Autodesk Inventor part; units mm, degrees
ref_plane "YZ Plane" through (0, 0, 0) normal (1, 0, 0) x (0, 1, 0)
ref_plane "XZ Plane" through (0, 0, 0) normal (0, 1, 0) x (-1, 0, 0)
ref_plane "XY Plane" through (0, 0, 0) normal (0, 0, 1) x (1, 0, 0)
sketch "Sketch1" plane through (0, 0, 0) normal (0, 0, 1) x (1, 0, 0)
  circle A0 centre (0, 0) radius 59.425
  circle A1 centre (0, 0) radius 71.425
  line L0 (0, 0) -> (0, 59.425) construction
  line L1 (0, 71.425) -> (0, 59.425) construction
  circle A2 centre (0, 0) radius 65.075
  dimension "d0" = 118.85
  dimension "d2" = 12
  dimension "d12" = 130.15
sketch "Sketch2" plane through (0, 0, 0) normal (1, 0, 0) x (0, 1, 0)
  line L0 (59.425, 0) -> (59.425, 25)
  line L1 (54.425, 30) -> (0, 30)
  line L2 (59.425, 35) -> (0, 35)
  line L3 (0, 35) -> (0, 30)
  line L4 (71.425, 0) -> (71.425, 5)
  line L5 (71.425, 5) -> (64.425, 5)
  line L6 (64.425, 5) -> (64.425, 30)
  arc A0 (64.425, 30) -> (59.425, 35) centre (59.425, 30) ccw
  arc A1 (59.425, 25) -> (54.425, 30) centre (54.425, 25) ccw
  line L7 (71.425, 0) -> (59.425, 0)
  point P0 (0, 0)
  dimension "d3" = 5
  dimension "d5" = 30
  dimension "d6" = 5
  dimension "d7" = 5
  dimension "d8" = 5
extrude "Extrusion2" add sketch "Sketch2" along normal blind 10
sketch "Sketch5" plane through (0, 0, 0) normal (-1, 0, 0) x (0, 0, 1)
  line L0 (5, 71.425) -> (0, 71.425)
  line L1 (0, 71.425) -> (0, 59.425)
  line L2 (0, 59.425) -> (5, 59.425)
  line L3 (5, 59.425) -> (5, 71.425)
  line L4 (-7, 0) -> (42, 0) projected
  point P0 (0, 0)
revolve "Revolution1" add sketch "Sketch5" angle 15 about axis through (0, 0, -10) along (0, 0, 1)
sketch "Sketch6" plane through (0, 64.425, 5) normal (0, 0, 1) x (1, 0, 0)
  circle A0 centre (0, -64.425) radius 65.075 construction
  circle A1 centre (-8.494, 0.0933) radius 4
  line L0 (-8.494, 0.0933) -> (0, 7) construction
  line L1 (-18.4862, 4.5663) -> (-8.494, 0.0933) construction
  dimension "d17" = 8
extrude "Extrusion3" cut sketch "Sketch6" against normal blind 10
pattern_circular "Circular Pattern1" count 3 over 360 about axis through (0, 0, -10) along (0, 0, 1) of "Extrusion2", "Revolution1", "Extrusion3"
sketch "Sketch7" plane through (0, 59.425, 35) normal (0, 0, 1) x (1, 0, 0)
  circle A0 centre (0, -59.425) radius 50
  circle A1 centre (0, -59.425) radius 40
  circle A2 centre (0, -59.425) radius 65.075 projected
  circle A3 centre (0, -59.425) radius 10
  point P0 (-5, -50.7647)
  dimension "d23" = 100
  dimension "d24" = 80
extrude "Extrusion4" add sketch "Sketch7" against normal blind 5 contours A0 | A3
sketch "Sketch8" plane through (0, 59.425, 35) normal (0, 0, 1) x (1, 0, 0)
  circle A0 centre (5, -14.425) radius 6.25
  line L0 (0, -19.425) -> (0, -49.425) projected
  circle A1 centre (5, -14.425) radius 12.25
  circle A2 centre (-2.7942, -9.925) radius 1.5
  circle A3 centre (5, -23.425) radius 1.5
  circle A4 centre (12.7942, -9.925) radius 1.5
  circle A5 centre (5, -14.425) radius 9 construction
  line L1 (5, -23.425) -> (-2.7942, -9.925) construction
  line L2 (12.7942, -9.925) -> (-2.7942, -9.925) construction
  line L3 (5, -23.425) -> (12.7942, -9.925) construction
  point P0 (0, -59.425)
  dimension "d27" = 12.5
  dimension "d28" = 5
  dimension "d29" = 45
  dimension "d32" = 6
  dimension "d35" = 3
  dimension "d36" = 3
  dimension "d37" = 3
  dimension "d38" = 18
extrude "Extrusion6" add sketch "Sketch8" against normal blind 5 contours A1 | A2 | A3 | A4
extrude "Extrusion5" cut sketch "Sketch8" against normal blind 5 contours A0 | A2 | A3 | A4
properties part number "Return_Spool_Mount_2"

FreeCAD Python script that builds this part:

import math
import FreeCAD as App
import Part
import Sketcher
Q = App.Units.Quantity

doc = App.newDocument("Part")
body = doc.addObject("PartDesign::Body", "Body")
body.AllowCompound = True

# Sketch on YZ plane
sketch1 = doc.addObject("Sketcher::SketchObject", "Sketch")
body.addObject(sketch1)
sketch1.AttachmentSupport = (doc.YZ_Plane, [""])
sketch1.MapMode = "FlatFace"
sketch1.addGeometry(Part.LineSegment(App.Vector(59.425, 25, 0), App.Vector(59.425, 0, 0)), False)
sketch1.addGeometry(Part.LineSegment(App.Vector(59.425, 0, 0), App.Vector(71.425, 0, 0)), False)
sketch1.addGeometry(Part.LineSegment(App.Vector(71.425, 0, 0), App.Vector(71.425, 5, 0)), False)
sketch1.addGeometry(Part.LineSegment(App.Vector(71.425, 5, 0), App.Vector(64.425, 5, 0)), False)
sketch1.addGeometry(Part.LineSegment(App.Vector(64.425, 5, 0), App.Vector(64.425, 30, 0)), False)
sketch1.addGeometry(Part.ArcOfCircle(Part.Circle(App.Vector(59.425, 30, 0), App.Vector(0, 0, 1), 5), math.radians(0), math.radians(90)), False)
sketch1.addGeometry(Part.LineSegment(App.Vector(59.425, 35, 0), App.Vector(0, 35, 0)), False)
sketch1.addGeometry(Part.LineSegment(App.Vector(0, 35, 0), App.Vector(0, 30, 0)), False)
sketch1.addGeometry(Part.LineSegment(App.Vector(0, 30, 0), App.Vector(54.425, 30, 0)), False)
sketch1.addGeometry(Part.ArcOfCircle(Part.Circle(App.Vector(54.425, 25, 0), App.Vector(0, 0, 1), 5), math.radians(0), math.radians(90)), False)
sketch1.addConstraint(Sketcher.Constraint("Coincident", 0, 2, 1, 1))
sketch1.addConstraint(Sketcher.Constraint("Coincident", 1, 2, 2, 1))
sketch1.addConstraint(Sketcher.Constraint("Coincident", 2, 2, 3, 1))
sketch1.addConstraint(Sketcher.Constraint("Coincident", 3, 2, 4, 1))
sketch1.addConstraint(Sketcher.Constraint("Tangent", 4, 2, 5, 1))
sketch1.addConstraint(Sketcher.Constraint("Tangent", 5, 2, 6, 1))
sketch1.addConstraint(Sketcher.Constraint("Coincident", 6, 2, 7, 1))
sketch1.addConstraint(Sketcher.Constraint("Coincident", 7, 2, 8, 1))
sketch1.addConstraint(Sketcher.Constraint("Tangent", 8, 2, 9, 2))
sketch1.addConstraint(Sketcher.Constraint("Tangent", 9, 1, 0, 1))
sketch1.addConstraint(Sketcher.Constraint("Vertical", 0))
sketch1.addConstraint(Sketcher.Constraint("Horizontal", 1))
sketch1.addConstraint(Sketcher.Constraint("Vertical", 2))
sketch1.addConstraint(Sketcher.Constraint("Horizontal", 3))
sketch1.addConstraint(Sketcher.Constraint("Vertical", 4))
sketch1.addConstraint(Sketcher.Constraint("Horizontal", 6))
sketch1.addConstraint(Sketcher.Constraint("Vertical", 7))
sketch1.addConstraint(Sketcher.Constraint("Horizontal", 8))
sketch1.addConstraint(Sketcher.Constraint("Equal", 5, 9))
sketch1.addConstraint(Sketcher.Constraint("PointOnObject", 0, 2, -1))
sketch1.addConstraint(Sketcher.Constraint("PointOnObject", 6, 2, -2))
sketch1.addConstraint(Sketcher.Constraint("Horizontal", 4, 2, 7, 2))
sketch1.addConstraint(Sketcher.Constraint("Vertical", 5, 3, 0, 2))
sketch1.addConstraint(Sketcher.Constraint("Equal", 0, 4))
sketch1.addConstraint(Sketcher.Constraint("Radius", 5, Q("5 mm")))
sketch1.addConstraint(Sketcher.Constraint("DistanceY", -1, 1, 5, 3, Q("30 mm")))
sketch1.addConstraint(Sketcher.Constraint("DistanceX", 1, 1, 1, 2, Q("12 mm")))
sketch1.addConstraint(Sketcher.Constraint("DistanceX", 6, 2, 6, 1, Q("59.425 mm")))
pad1 = doc.addObject("PartDesign::Pad", "Pad")
body.addObject(pad1)
pad1.Profile = sketch1
pad1.Length = 10

# Sketch on YZ plane
sketch2 = doc.addObject("Sketcher::SketchObject", "Sketch001")
body.addObject(sketch2)
sketch2.AttachmentSupport = (doc.YZ_Plane, [""])
sketch2.MapMode = "FlatFace"
sketch2.addGeometry(Part.LineSegment(App.Vector(59.425, 5, 0), App.Vector(71.425, 5, 0)), False)
sketch2.addGeometry(Part.LineSegment(App.Vector(71.425, 5, 0), App.Vector(71.425, 0, 0)), False)
sketch2.addGeometry(Part.LineSegment(App.Vector(71.425, 0, 0), App.Vector(59.425, 0, 0)), False)
sketch2.addGeometry(Part.LineSegment(App.Vector(59.425, 0, 0), App.Vector(59.425, 5, 0)), False)
sketch2.addConstraint(Sketcher.Constraint("Coincident", 0, 2, 1, 1))
sketch2.addConstraint(Sketcher.Constraint("Coincident", 1, 2, 2, 1))
sketch2.addConstraint(Sketcher.Constraint("Coincident", 2, 2, 3, 1))
sketch2.addConstraint(Sketcher.Constraint("Coincident", 3, 2, 0, 1))
sketch2.addConstraint(Sketcher.Constraint("Horizontal", 0))
sketch2.addConstraint(Sketcher.Constraint("Vertical", 1))
sketch2.addConstraint(Sketcher.Constraint("Horizontal", 2))
sketch2.addConstraint(Sketcher.Constraint("Vertical", 3))
sketch2.addConstraint(Sketcher.Constraint("PointOnObject", 1, 2, -1))
sketch2.addConstraint(Sketcher.Constraint("DistanceX", 0, 1, 0, 2, Q("12 mm")))
sketch2.addConstraint(Sketcher.Constraint("DistanceY", 1, 2, 1, 1, Q("5 mm")))
sketch2.addConstraint(Sketcher.Constraint("DistanceX", -1, 1, 0, 2, Q("71.425 mm")))
revolution = doc.addObject("PartDesign::Revolution", "Revolution")
body.addObject(revolution)
revolution.Profile = sketch2
revolution.ReferenceAxis = (sketch2, ["V_Axis"])
revolution.Angle = 15

# Sketch on XY plane
sketch3 = doc.addObject("Sketcher::SketchObject", "Sketch002")
body.addObject(sketch3)
sketch3.AttachmentSupport = (doc.XY_Plane, [""])
sketch3.MapMode = "FlatFace"
sketch3.AttachmentOffset = App.Placement(App.Vector(0, 0, 5), App.Rotation())
sketch3.addGeometry(Part.Circle(App.Vector(-8.494, 64.5183, 0), App.Vector(0, 0, 1), 4), False)
sketch3.addConstraint(Sketcher.Constraint("Diameter", 0, Q("8 mm")))
sketch3.addConstraint(Sketcher.Constraint("DistanceX", 0, 3, -1, 1, Q("8.494 mm")))
sketch3.addConstraint(Sketcher.Constraint("DistanceY", -1, 1, 0, 3, Q("64.5183 mm")))
pocket1 = doc.addObject("PartDesign::Pocket", "Pocket")
body.addObject(pocket1)
pocket1.Profile = sketch3
pocket1.Length = 10
doc.recompute()

polarpattern = doc.addObject("PartDesign::PolarPattern", "PolarPattern")
body.addObject(polarpattern)
polarpattern.Originals = [pad1, revolution, pocket1]
polarpattern.Axis = (doc.Z_Axis, [""])
polarpattern.Angle = 360
polarpattern.Occurrences = 3
body.Tip = polarpattern

# Sketch on XY plane
sketch4 = doc.addObject("Sketcher::SketchObject", "Sketch003")
body.addObject(sketch4)
sketch4.AttachmentSupport = (doc.XY_Plane, [""])
sketch4.MapMode = "FlatFace"
sketch4.AttachmentOffset = App.Placement(App.Vector(0, 0, 35), App.Rotation())
sketch4.addGeometry(Part.Circle(App.Vector(0, 0, 0), App.Vector(0, 0, 1), 50), False)
sketch4.addGeometry(Part.Circle(App.Vector(0, 0, 0), App.Vector(0, 0, 1), 40), False)
sketch4.addGeometry(Part.Circle(App.Vector(0, 0, 0), App.Vector(0, 0, 1), 10), False)
sketch4.addConstraint(Sketcher.Constraint("Coincident", 0, 3, -1, 1))
sketch4.addConstraint(Sketcher.Constraint("Coincident", 1, 3, -1, 1))
sketch4.addConstraint(Sketcher.Constraint("Coincident", 2, 3, -1, 1))
sketch4.addConstraint(Sketcher.Constraint("Diameter", 0, Q("100 mm")))
sketch4.addConstraint(Sketcher.Constraint("Diameter", 1, Q("80 mm")))
sketch4.addConstraint(Sketcher.Constraint("Diameter", 2, Q("20 mm")))
pad2 = doc.addObject("PartDesign::Pad", "Pad001")
body.addObject(pad2)
pad2.Profile = sketch4
pad2.Length = 5
pad2.Reversed = True

# Sketch on XY plane
sketch5 = doc.addObject("Sketcher::SketchObject", "Sketch004")
body.addObject(sketch5)
sketch5.AttachmentSupport = (doc.XY_Plane, [""])
sketch5.MapMode = "FlatFace"
sketch5.AttachmentOffset = App.Placement(App.Vector(0, 0, 35), App.Rotation())
sketch5.addGeometry(Part.Circle(App.Vector(5, 45, 0), App.Vector(0, 0, 1), 12.25), False)
sketch5.addGeometry(Part.Circle(App.Vector(5, 45, 0), App.Vector(0, 0, 1), 6.25), False)
sketch5.addConstraint(Sketcher.Constraint("Coincident", 1, 3, 0, 3))
sketch5.addConstraint(Sketcher.Constraint("Diameter", 1, Q("12.5 mm")))
sketch5.addConstraint(Sketcher.Constraint("DistanceX", -1, 1, 0, 3, Q("5 mm")))
sketch5.addConstraint(Sketcher.Constraint("DistanceY", -1, 1, 0, 3, Q("45 mm")))
sketch5.addConstraint(Sketcher.Constraint("Diameter", 0, Q("24.5 mm")))
pad3 = doc.addObject("PartDesign::Pad", "Pad002")
body.addObject(pad3)
pad3.Profile = sketch5
pad3.Length = 5
pad3.Reversed = True

# Sketch on XY plane
sketch6 = doc.addObject("Sketcher::SketchObject", "Sketch005")
body.addObject(sketch6)
sketch6.AttachmentSupport = (doc.XY_Plane, [""])
sketch6.MapMode = "FlatFace"
sketch6.AttachmentOffset = App.Placement(App.Vector(0, 0, 35), App.Rotation())
sketch6.addGeometry(Part.Circle(App.Vector(5, 45, 0), App.Vector(0, 0, 1), 6.25), False)
sketch6.addGeometry(Part.Circle(App.Vector(-2.7942, 49.5, 0), App.Vector(0, 0, 1), 1.5), False)
sketch6.addGeometry(Part.Circle(App.Vector(5, 36, 0), App.Vector(0, 0, 1), 1.5), False)
sketch6.addGeometry(Part.Circle(App.Vector(12.7942, 49.5, 0), App.Vector(0, 0, 1), 1.5), False)
sketch6.addConstraint(Sketcher.Constraint("Equal", 1, 2))
sketch6.addConstraint(Sketcher.Constraint("Equal", 2, 3))
sketch6.addConstraint(Sketcher.Constraint("Horizontal", 1, 3, 3, 3))
sketch6.addConstraint(Sketcher.Constraint("Vertical", 0, 3, 2, 3))
sketch6.addConstraint(Sketcher.Constraint("Diameter", 1, Q("3 mm")))
sketch6.addConstraint(Sketcher.Constraint("Diameter", 0, Q("12.5 mm")))
sketch6.addConstraint(Sketcher.Constraint("DistanceX", -1, 1, 0, 3, Q("5 mm")))
sketch6.addConstraint(Sketcher.Constraint("DistanceY", -1, 1, 0, 3, Q("45 mm")))
sketch6.addConstraint(Sketcher.Constraint("DistanceY", -1, 1, 2, 3, Q("36 mm")))
sketch6.addConstraint(Sketcher.Constraint("DistanceY", -1, 1, 1, 3, Q("49.5 mm")))
sketch6.addConstraint(Sketcher.Constraint("DistanceX", 1, 3, -1, 1, Q("2.7942 mm")))
sketch6.addConstraint(Sketcher.Constraint("DistanceX", -1, 1, 3, 3, Q("12.7942 mm")))
pocket2 = doc.addObject("PartDesign::Pocket", "Pocket001")
body.addObject(pocket2)
pocket2.Profile = sketch6
pocket2.Length = 5

doc.recompute()
